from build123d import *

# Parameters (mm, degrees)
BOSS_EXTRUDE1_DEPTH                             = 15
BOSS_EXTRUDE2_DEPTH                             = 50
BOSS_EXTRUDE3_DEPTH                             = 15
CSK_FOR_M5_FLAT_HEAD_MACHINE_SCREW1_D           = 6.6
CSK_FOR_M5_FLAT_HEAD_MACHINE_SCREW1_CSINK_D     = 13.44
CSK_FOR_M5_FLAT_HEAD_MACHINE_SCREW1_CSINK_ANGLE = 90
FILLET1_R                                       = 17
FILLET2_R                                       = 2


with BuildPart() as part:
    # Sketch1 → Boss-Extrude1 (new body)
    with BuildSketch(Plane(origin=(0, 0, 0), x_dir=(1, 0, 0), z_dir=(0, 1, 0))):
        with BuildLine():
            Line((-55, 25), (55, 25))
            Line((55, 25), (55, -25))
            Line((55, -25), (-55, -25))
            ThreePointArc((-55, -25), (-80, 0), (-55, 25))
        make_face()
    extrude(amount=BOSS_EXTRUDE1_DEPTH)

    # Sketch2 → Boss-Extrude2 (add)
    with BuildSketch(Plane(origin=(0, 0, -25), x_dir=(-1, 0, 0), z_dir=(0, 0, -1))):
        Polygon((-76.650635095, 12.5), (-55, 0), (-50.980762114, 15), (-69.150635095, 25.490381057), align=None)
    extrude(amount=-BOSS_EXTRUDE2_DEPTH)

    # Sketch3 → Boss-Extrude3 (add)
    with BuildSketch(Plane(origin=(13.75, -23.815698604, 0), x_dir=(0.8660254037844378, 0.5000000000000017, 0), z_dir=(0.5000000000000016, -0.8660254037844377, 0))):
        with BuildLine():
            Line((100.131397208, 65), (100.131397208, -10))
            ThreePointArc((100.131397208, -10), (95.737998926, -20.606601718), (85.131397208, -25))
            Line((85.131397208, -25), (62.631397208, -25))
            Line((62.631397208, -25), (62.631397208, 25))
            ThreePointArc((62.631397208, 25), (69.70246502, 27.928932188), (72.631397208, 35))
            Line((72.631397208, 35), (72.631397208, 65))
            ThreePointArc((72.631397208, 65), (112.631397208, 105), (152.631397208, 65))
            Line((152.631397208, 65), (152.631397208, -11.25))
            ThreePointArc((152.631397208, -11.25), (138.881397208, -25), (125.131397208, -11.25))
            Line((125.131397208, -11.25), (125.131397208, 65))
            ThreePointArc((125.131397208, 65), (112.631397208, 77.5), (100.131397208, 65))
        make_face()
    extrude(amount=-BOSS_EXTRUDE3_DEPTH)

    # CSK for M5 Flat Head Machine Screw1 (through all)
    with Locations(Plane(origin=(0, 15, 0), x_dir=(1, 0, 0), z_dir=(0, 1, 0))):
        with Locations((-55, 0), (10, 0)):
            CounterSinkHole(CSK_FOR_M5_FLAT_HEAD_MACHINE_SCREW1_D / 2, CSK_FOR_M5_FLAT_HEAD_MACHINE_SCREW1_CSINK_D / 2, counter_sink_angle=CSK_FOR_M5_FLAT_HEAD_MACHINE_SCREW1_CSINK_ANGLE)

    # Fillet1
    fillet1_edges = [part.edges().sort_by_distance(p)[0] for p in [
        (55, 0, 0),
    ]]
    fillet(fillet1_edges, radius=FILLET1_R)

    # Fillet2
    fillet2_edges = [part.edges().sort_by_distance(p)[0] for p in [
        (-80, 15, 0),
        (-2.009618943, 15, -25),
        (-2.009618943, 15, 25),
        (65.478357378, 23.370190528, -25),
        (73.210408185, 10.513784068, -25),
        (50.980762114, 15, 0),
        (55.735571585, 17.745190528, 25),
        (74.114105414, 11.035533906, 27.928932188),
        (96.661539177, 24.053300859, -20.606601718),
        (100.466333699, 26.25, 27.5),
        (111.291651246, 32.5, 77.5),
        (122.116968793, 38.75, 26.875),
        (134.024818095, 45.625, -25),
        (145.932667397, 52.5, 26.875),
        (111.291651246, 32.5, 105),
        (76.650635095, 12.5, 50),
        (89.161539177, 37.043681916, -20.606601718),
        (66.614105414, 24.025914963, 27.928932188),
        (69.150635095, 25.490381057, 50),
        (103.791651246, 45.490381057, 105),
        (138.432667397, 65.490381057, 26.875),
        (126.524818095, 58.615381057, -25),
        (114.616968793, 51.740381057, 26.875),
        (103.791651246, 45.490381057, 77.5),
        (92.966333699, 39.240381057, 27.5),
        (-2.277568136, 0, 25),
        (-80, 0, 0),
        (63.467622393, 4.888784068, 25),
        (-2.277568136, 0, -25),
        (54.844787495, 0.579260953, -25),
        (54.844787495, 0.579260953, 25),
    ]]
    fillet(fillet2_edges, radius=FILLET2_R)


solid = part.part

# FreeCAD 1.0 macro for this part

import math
import FreeCAD as App
import Part
import Sketcher
from FreeCAD import Vector
Q = App.Units.Quantity


def edges_at(feature, points):
    """Names of the edges that pass closest to the given points."""
    edges = feature.Shape.Edges
    near = lambda p: min(range(len(edges)), key=lambda i: edges[i].distToShape(Part.Vertex(*p))[0])
    return sorted({f"Edge{near(p) + 1}" for p in points})


def add_polygon(sketch, points):
    """Adds a closed chain of lines whose ends are joined by coincident constraints."""
    first, n = sketch.GeometryCount, len(points)
    for a, b in zip(points, points[1:] + points[:1]):
        sketch.addGeometry(Part.LineSegment(App.Vector(*a, 0), App.Vector(*b, 0)), False)
    for i in range(n):
        sketch.addConstraint(Sketcher.Constraint("Coincident", first + i, 2, first + (i + 1) % n, 1))

doc = App.newDocument("Part")
body = doc.addObject("PartDesign::Body", "Body")

# Sketch on XZ plane
sketch1 = body.newObject("Sketcher::SketchObject", "Sketch")
sketch1.AttachmentSupport = (doc.getObject("XZ_Plane"), [""])
sketch1.MapMode = "FlatFace"
sketch1.addGeometry(Part.LineSegment(Vector(55, -25, 0), Vector(-55, -25, 0)), False)
sketch1.addGeometry(Part.ArcOfCircle(Part.Circle(Vector(-55, 0, 0), Vector(0, 0, 1), 25), math.radians(90), math.radians(270)), False)
sketch1.addGeometry(Part.LineSegment(Vector(-55, 25, 0), Vector(55, 25, 0)), False)
sketch1.addGeometry(Part.LineSegment(Vector(55, 25, 0), Vector(55, -25, 0)), False)
sketch1.addConstraint(Sketcher.Constraint("Tangent", 0, 2, 1, 2))
sketch1.addConstraint(Sketcher.Constraint("Tangent", 1, 1, 2, 1))
sketch1.addConstraint(Sketcher.Constraint("Coincident", 2, 2, 3, 1))
sketch1.addConstraint(Sketcher.Constraint("Coincident", 3, 2, 0, 1))
sketch1.addConstraint(Sketcher.Constraint("Horizontal", 0))
sketch1.addConstraint(Sketcher.Constraint("Horizontal", 2))
sketch1.addConstraint(Sketcher.Constraint("Vertical", 3))
sketch1.addConstraint(Sketcher.Constraint("Symmetric", 0, 2, 2, 2, -1, 1))
sketch1.addConstraint(Sketcher.Constraint("Radius", 1, 25.0))
sketch1.addConstraint(Sketcher.Constraint("DistanceX", 0, 2, 0, 1, 110.0))
pad1 = body.newObject("PartDesign::Pad", "Pad")
pad1.Profile = sketch1
pad1.Length = 15
pad1.Reversed = True

# Sketch on XY plane
sketch2 = body.newObject("Sketcher::SketchObject", "Sketch001")
sketch2.AttachmentSupport = (doc.getObject("XY_Plane"), [""])
sketch2.MapMode = "FlatFace"
sketch2.AttachmentOffset = App.Placement(Vector(0, 0, -25), App.Rotation())
add_polygon(sketch2, [(77, 12), (55, 0), (51, 15), (69, 25)])  # lines 0-3
sketch2.addConstraint(Sketcher.Constraint("PointOnObject", 0, 2, -1))
sketch2.addConstraint(Sketcher.Constraint("Parallel", 0, 2))
sketch2.addConstraint(Sketcher.Constraint("Perpendicular", 2, 3))
sketch2.addConstraint(Sketcher.Constraint("Angle", 0, Q("-150 deg")))
sketch2.addConstraint(Sketcher.Constraint("Angle", 1, Q("105 deg")))
sketch2.addConstraint(Sketcher.Constraint("Distance", 0, 25.0))
sketch2.addConstraint(Sketcher.Constraint("Distance", 3, 15.0))
sketch2.addConstraint(Sketcher.Constraint("DistanceX", -1, 1, 0, 2, 55.0))
pad2 = body.newObject("PartDesign::Pad", "Pad001")
pad2.Profile = sketch2
pad2.Length = 50

# Sketch on an angled plane
sketch3 = body.newObject("Sketcher::SketchObject", "Sketch002")
sketch3.Placement = App.Placement(Vector(13.75, -23.815699, 0), App.Rotation(Vector(0.866025404, 0.5, 0), Vector(0, 0, 1), Vector(0.5, -0.866025404, 0), "ZXY"))
sketch3.addGeometry(Part.LineSegment(Vector(100, -10, 0), Vector(100, 65, 0)), False)
sketch3.addGeometry(Part.ArcOfCircle(Part.Circle(Vector(113, 65, 0), Vector(0, 0, 1), 12), math.radians(0), math.radians(180)), False)
sketch3.addGeometry(Part.LineSegment(Vector(125, 65, 0), Vector(125, -11, 0)), False)
sketch3.addGeometry(Part.ArcOfCircle(Part.Circle(Vector(139, -11, 0), Vector(0, 0, 1), 14), math.radians(180), math.radians(360)), False)
sketch3.addGeometry(Part.LineSegment(Vector(153, -11, 0), Vector(153, 65, 0)), False)
sketch3.addGeometry(Part.ArcOfCircle(Part.Circle(Vector(113, 65, 0), Vector(0, 0, 1), 40), math.radians(0), math.radians(180)), False)
sketch3.addGeometry(Part.LineSegment(Vector(73, 65, 0), Vector(73, 35, 0)), False)
sketch3.addGeometry(Part.ArcOfCircle(Part.Circle(Vector(63, 35, 0), Vector(0, 0, 1), 10), math.radians(-90), math.radians(0)), False)
sketch3.addGeometry(Part.LineSegment(Vector(63, 25, 0), Vector(63, -25, 0)), False)
sketch3.addGeometry(Part.LineSegment(Vector(63, -25, 0), Vector(85, -25, 0)), False)
sketch3.addGeometry(Part.ArcOfCircle(Part.Circle(Vector(85, -10, 0), Vector(0, 0, 1), 15), math.radians(-90), math.radians(0)), False)
sketch3.addConstraint(Sketcher.Constraint("Tangent", 0, 2, 1, 2))
sketch3.addConstraint(Sketcher.Constraint("Tangent", 1, 1, 2, 1))
sketch3.addConstraint(Sketcher.Constraint("Tangent", 2, 2, 3, 1))
sketch3.addConstraint(Sketcher.Constraint("Tangent", 3, 2, 4, 1))
sketch3.addConstraint(Sketcher.Constraint("Tangent", 4, 2, 5, 1))
sketch3.addConstraint(Sketcher.Constraint("Tangent", 5, 2, 6, 1))
sketch3.addConstraint(Sketcher.Constraint("Tangent", 6, 2, 7, 2))
sketch3.addConstraint(Sketcher.Constraint("Coincident", 7, 1, 8, 1))
sketch3.addConstraint(Sketcher.Constraint("Coincident", 8, 2, 9, 1))
sketch3.addConstraint(Sketcher.Constraint("Tangent", 9, 2, 10, 1))
sketch3.addConstraint(Sketcher.Constraint("Tangent", 10, 2, 0, 1))
sketch3.addConstraint(Sketcher.Constraint("Vertical", 0))
sketch3.addConstraint(Sketcher.Constraint("Vertical", 2))
sketch3.addConstraint(Sketcher.Constraint("Vertical", 4))
sketch3.addConstraint(Sketcher.Constraint("Vertical", 6))
sketch3.addConstraint(Sketcher.Constraint("Vertical", 8))
sketch3.addConstraint(Sketcher.Constraint("Horizontal", 9))
sketch3.addConstraint(Sketcher.Constraint("Coincident", 5, 3, 1, 3))
sketch3.addConstraint(Sketcher.Constraint("Radius", 5, 40.0))
sketch3.addConstraint(Sketcher.Constraint("Radius", 7, 10.0))
sketch3.addConstraint(Sketcher.Constraint("Radius", 10, 15.0))
sketch3.addConstraint(Sketcher.Constraint("Radius", 1, 12.5))
sketch3.addConstraint(Sketcher.Constraint("DistanceY", 0, 1, 0, 2, 75.0))
sketch3.addConstraint(Sketcher.Constraint("DistanceY", 6, 2, 6, 1, 30.0))
sketch3.addConstraint(Sketcher.Constraint("DistanceX", 9, 1, 9, 2, 22.5))
sketch3.addConstraint(Sketcher.Constraint("DistanceY", -1, 1, 1, 3, 65.0))
sketch3.addConstraint(Sketcher.Constraint("DistanceY", 2, 2, 2, 1, 76.25))
sketch3.addConstraint(Sketcher.Constraint("DistanceX", -1, 1, 1, 3, 112.631397))
pad3 = body.newObject("PartDesign::Pad", "Pad002")
pad3.Profile = sketch3
pad3.Length = 15
pad3.Reversed = True

# Sketch on XZ plane
sketch4 = body.newObject("Sketcher::SketchObject", "Sketch003")
sketch4.AttachmentSupport = (doc.getObject("XZ_Plane"), [""])
sketch4.MapMode = "FlatFace"
sketch4.AttachmentOffset = App.Placement(Vector(0, 0, -15), App.Rotation())
sketch4.addGeometry(Part.Circle(Vector(-55, 0, 0), Vector(0, 0, 1), 3.3), False)
sketch4.addGeometry(Part.Circle(Vector(10, 0, 0), Vector(0, 0, 1), 3.3), False)
sketch4.addConstraint(Sketcher.Constraint("Equal", 0, 1))
sketch4.addConstraint(Sketcher.Constraint("PointOnObject", 0, 3, -1))
sketch4.addConstraint(Sketcher.Constraint("PointOnObject", 1, 3, -1))
sketch4.addConstraint(Sketcher.Constraint("Diameter", 0, 6.6))
sketch4.addConstraint(Sketcher.Constraint("DistanceX", 0, 3, -1, 1, 55.0))
sketch4.addConstraint(Sketcher.Constraint("DistanceX", -1, 1, 1, 3, 10.0))
doc.recompute()
hole = body.newObject("PartDesign::Hole", "Hole")
hole.Profile = sketch4
hole.ThreadType = "None"
hole.Diameter = 6.6
hole.DepthType = "ThroughAll"
hole.HoleCutType = "Countersink"
hole.HoleCutDiameter = 13.44
hole.HoleCutCountersinkAngle = 90
hole.Reversed = True
doc.recompute()

fillet = body.newObject("PartDesign::Fillet", "Fillet")
fillet.Base = (hole, edges_at(hole, [(55, 0, 0)]))
fillet.Radius = 17
doc.recompute()

fillet2 = body.newObject("PartDesign::Fillet", "Fillet001")
fillet2.Base = (fillet, edges_at(fillet, [
    (-80, 15, 0),
    (-2.01, 15, -25),
    (-2.01, 15, 25),
    (60.066, 20.245, -25),
    (67.798, 7.389, -25),
    (50.981, 15, 0),
    (55.736, 17.745, 25),
    (74.114, 11.036, 27.929),
    (96.662, 24.053, -20.607),
    (100.466, 26.25, 27.5),
    (111.292, 32.5, 77.5),
    (122.117, 38.75, 26.875),
    (134.025, 45.625, -25),
    (145.933, 52.5, 26.875),
    (111.292, 32.5, 105),
    (76.651, 12.5, 50),
    (89.162, 37.044, -20.607),
    (66.614, 24.026, 27.929),
    (69.151, 25.49, 50),
    (103.792, 45.49, 105),
    (138.433, 65.49, 26.875),
    (126.525, 58.615, -25),
    (114.617, 51.74, 26.875),
    (103.792, 45.49, 77.5),
    (92.966, 39.24, 27.5),
    (-2.278, 0, 25),
    (-80, 0, 0),
    (63.468, 4.889, 25),
    (-2.278, 0, -25),
    (54.845, 0.579, -25),
    (54.845, 0.579, 25),
]))
fillet2.Radius = 2

doc.recompute()
